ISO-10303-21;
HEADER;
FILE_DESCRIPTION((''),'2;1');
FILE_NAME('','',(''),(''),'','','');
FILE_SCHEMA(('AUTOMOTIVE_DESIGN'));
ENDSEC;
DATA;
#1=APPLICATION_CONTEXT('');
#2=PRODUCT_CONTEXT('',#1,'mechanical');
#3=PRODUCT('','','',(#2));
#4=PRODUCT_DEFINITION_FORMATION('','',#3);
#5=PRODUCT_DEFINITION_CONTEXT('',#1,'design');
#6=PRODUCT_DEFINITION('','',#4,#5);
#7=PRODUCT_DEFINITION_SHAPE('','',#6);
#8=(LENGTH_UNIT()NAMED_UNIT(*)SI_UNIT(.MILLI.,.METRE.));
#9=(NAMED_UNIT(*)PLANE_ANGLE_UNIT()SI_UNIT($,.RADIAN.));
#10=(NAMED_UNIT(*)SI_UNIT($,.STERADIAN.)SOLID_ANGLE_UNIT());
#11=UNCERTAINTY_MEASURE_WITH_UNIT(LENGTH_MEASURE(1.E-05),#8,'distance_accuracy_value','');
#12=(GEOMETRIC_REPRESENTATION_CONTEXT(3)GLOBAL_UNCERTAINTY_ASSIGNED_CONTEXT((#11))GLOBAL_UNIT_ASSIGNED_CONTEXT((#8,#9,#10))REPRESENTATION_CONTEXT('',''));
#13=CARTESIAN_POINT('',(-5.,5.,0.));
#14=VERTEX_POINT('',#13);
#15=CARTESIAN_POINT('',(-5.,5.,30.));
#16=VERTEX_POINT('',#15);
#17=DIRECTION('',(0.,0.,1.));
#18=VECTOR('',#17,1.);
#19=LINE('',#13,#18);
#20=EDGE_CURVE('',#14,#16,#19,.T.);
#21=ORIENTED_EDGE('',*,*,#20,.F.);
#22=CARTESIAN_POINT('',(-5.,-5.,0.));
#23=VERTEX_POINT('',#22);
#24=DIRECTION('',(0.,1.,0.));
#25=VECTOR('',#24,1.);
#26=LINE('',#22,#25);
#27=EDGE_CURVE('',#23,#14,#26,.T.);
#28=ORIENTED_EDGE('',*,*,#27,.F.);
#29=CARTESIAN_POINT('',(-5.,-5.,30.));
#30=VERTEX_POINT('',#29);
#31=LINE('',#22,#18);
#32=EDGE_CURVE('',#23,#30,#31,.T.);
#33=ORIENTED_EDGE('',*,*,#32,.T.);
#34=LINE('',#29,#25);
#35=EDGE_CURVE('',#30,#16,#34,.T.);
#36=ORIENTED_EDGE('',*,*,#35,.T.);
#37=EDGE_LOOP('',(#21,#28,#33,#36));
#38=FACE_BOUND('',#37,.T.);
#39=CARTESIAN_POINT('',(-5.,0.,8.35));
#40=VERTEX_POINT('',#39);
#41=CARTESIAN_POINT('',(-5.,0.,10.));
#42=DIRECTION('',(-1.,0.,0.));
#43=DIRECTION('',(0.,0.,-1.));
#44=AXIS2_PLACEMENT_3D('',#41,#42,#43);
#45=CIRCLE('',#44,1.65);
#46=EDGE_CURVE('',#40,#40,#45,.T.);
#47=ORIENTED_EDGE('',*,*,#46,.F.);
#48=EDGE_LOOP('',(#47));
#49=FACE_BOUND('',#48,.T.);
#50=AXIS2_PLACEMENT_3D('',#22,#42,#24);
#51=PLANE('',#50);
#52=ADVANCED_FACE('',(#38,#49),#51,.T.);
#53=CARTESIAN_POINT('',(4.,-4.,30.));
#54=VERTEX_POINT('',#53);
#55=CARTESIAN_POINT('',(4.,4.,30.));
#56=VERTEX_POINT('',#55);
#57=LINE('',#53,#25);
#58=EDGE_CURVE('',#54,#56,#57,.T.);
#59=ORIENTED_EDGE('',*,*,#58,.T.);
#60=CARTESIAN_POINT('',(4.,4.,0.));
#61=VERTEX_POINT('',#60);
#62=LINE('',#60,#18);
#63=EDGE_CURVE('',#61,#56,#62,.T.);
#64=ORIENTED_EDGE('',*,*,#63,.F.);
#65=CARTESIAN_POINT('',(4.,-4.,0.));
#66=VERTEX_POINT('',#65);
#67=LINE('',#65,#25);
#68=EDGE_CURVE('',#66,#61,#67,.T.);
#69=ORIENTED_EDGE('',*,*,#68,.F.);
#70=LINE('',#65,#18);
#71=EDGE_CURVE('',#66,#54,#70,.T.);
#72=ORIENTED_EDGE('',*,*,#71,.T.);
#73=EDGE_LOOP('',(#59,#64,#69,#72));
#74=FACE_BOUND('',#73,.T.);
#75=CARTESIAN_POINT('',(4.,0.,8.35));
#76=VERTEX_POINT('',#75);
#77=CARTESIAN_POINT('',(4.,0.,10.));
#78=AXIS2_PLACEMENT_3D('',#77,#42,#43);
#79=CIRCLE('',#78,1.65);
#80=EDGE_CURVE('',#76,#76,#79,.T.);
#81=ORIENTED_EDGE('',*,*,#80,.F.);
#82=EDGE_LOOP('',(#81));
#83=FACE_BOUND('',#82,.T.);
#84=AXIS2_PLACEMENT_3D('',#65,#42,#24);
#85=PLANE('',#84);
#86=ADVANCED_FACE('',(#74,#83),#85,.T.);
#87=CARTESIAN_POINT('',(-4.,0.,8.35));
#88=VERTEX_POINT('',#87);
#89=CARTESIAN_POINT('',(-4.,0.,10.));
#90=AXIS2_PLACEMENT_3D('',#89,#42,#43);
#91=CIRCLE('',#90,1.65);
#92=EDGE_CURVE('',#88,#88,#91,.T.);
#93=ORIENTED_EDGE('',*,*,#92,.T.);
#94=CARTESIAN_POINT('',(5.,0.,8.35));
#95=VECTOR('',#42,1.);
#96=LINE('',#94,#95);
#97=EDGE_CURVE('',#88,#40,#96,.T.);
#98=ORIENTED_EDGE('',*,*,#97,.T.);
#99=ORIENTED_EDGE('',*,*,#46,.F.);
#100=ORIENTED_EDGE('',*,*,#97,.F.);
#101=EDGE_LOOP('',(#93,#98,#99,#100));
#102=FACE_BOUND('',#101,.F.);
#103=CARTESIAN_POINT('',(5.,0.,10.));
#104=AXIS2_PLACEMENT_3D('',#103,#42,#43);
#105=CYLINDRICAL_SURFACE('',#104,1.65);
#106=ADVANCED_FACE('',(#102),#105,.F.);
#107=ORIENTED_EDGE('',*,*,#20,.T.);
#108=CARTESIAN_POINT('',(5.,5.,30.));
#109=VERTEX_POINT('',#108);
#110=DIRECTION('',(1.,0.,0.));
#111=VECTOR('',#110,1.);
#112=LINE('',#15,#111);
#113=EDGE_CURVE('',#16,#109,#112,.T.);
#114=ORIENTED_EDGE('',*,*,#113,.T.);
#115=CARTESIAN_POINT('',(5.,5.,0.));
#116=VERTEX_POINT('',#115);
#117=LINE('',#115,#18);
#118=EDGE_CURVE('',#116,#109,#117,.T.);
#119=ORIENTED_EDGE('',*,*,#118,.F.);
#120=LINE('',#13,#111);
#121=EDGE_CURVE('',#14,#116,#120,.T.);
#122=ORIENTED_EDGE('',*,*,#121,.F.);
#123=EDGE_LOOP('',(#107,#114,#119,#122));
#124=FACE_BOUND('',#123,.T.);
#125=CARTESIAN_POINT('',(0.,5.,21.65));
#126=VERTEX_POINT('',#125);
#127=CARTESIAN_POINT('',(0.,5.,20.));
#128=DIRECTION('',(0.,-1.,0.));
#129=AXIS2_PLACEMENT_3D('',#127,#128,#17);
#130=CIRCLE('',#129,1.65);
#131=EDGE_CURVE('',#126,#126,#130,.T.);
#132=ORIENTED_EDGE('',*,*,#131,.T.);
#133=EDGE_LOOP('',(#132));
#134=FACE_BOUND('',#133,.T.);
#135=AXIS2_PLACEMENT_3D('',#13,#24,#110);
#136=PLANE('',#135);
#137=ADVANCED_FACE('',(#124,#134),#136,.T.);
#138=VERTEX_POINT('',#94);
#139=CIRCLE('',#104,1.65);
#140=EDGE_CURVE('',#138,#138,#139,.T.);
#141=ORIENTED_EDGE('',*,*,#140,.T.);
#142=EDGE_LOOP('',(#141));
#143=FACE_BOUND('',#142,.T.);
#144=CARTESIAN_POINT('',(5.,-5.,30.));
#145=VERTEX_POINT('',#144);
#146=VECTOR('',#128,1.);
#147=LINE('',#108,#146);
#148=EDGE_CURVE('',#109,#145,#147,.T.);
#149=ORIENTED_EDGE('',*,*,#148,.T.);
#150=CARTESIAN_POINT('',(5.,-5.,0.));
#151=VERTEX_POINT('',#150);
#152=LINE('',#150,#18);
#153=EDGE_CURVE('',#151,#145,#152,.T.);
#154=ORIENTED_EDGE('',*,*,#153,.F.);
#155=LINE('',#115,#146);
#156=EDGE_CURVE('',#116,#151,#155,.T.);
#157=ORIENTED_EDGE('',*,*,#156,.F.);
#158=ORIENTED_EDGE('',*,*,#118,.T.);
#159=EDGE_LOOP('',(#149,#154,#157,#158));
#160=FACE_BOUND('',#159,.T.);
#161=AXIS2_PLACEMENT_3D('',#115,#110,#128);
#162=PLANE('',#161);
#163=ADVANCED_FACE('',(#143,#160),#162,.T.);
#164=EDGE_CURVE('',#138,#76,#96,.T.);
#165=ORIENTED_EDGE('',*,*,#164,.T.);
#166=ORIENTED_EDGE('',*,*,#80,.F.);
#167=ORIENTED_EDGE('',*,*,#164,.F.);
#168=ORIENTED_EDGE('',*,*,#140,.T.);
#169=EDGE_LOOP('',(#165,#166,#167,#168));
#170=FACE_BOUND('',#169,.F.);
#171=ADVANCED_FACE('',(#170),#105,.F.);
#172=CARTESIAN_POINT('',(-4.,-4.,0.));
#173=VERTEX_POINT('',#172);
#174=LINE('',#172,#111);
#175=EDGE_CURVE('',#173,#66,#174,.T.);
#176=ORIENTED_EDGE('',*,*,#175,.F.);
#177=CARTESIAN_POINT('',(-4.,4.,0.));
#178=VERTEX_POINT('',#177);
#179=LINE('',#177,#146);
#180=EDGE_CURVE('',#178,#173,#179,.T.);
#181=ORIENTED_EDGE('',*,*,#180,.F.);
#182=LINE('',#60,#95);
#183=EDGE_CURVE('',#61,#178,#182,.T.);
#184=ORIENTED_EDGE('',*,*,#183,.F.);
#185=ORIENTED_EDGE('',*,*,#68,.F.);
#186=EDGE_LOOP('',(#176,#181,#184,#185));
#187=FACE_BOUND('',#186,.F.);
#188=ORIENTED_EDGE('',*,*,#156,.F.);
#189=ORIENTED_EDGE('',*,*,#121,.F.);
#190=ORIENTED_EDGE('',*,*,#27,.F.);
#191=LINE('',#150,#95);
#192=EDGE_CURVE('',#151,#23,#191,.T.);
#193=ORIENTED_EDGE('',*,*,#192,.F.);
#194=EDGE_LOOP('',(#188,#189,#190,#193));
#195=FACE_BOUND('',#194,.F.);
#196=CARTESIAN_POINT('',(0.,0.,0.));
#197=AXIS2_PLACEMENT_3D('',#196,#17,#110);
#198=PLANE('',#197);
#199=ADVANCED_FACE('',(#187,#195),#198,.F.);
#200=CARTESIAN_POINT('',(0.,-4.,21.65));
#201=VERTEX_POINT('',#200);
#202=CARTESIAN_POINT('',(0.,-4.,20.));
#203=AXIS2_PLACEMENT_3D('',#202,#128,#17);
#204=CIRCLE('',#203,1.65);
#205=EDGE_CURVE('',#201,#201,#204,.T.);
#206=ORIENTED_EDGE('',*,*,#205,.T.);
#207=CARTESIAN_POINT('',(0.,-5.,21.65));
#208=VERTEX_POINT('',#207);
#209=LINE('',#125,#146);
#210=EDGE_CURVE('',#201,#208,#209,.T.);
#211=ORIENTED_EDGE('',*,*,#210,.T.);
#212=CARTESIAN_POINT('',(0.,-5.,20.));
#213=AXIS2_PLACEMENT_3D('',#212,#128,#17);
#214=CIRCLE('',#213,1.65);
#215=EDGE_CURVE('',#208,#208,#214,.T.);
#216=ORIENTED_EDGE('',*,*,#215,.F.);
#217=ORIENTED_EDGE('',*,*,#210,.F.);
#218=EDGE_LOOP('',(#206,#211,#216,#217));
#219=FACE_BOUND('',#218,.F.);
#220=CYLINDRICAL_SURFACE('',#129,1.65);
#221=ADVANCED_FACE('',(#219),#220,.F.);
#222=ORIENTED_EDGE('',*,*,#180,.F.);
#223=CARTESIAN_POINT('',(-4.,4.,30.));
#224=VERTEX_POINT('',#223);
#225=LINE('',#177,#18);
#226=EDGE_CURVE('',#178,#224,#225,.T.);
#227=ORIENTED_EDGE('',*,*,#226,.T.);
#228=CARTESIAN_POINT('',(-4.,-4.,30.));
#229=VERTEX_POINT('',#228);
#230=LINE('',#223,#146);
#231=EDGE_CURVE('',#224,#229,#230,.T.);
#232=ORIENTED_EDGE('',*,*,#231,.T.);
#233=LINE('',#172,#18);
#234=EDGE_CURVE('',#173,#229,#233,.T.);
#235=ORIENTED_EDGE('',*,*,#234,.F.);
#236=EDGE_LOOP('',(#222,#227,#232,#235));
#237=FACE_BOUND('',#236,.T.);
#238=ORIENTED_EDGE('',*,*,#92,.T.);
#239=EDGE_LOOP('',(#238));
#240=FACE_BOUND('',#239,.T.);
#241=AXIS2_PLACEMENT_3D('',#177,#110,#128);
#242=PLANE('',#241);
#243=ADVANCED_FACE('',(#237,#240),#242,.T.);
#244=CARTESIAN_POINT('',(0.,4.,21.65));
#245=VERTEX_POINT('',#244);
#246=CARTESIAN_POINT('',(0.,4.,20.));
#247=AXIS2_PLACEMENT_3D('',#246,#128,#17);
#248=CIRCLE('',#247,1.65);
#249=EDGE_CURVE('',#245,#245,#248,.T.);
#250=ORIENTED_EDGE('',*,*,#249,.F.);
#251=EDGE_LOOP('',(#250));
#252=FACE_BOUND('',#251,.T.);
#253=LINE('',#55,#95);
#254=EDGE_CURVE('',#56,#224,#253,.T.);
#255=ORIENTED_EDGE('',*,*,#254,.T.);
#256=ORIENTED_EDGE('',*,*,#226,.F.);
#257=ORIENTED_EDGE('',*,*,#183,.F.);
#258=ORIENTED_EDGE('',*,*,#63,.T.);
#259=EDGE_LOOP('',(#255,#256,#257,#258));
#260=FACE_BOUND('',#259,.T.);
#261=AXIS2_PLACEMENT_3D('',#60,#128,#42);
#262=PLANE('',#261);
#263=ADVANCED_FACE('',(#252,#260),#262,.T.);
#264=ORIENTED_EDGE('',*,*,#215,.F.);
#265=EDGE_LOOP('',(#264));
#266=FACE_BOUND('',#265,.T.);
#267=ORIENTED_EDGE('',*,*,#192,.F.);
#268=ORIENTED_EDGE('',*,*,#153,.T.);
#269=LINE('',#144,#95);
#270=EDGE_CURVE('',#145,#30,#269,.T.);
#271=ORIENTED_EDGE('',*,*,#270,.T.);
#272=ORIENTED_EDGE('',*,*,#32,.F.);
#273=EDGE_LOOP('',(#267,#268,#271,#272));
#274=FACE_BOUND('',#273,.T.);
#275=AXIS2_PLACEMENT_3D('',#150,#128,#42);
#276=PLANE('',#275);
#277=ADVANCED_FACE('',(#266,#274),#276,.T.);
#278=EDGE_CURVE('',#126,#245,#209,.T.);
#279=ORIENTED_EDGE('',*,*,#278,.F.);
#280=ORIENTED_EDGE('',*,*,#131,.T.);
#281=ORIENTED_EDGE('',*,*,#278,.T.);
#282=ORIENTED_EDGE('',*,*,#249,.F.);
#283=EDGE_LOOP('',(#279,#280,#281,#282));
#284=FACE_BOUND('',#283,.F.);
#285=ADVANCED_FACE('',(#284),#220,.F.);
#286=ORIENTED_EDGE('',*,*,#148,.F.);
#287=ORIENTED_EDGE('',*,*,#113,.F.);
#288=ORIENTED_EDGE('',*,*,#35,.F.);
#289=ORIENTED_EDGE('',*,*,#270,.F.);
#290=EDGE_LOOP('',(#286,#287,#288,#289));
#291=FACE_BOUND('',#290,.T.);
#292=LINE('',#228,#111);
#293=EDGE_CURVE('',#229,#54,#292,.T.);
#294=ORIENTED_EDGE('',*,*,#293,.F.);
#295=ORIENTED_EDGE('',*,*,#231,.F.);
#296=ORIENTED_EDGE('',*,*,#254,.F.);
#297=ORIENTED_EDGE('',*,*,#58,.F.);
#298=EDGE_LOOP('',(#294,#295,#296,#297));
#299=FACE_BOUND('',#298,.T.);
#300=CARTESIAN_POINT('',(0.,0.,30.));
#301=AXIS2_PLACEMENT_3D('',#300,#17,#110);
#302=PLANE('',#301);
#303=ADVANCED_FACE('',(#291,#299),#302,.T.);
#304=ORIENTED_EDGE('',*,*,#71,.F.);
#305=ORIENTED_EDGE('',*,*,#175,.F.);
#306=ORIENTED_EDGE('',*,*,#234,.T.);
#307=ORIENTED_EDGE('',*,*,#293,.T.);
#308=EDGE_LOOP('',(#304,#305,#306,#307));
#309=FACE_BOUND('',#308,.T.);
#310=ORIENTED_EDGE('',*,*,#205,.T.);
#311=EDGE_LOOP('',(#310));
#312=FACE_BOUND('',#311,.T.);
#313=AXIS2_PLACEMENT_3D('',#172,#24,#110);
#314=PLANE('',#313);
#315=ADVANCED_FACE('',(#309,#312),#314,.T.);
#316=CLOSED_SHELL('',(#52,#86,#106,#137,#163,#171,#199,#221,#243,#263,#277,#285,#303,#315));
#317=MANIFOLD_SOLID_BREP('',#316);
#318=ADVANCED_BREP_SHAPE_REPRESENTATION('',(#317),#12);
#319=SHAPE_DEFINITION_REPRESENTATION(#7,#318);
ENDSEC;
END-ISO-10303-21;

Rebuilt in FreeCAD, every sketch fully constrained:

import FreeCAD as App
import Part
import Sketcher
from FreeCAD import Vector

doc = App.newDocument("Part")
body = doc.addObject("PartDesign::Body", "Body")

# Sketch on XY plane
sketch1 = body.newObject("Sketcher::SketchObject", "Sketch")
sketch1.AttachmentSupport = (doc.getObject("XY_Plane"), [""])
sketch1.MapMode = "FlatFace"
sketch1.addGeometry([
    Part.LineSegment(Vector(-5, -5, 0), Vector(5, -5, 0)),  # 0
    Part.LineSegment(Vector(5, -5, 0), Vector(5, 5, 0)),  # 1
    Part.LineSegment(Vector(5, 5, 0), Vector(-5, 5, 0)),  # 2
    Part.LineSegment(Vector(-5, 5, 0), Vector(-5, -5, 0)),  # 3
    Part.LineSegment(Vector(-4, 4, 0), Vector(4, 4, 0)),  # 4
    Part.LineSegment(Vector(4, 4, 0), Vector(4, -4, 0)),  # 5
    Part.LineSegment(Vector(4, -4, 0), Vector(-4, -4, 0)),  # 6
    Part.LineSegment(Vector(-4, -4, 0), Vector(-4, 4, 0)),  # 7
], False)
sketch1.addConstraint([
    Sketcher.Constraint("Coincident", 0, 2, 1, 1),
    Sketcher.Constraint("Coincident", 1, 2, 2, 1),
    Sketcher.Constraint("Coincident", 2, 2, 3, 1),
    Sketcher.Constraint("Coincident", 3, 2, 0, 1),
    Sketcher.Constraint("Coincident", 4, 2, 5, 1),
    Sketcher.Constraint("Coincident", 5, 2, 6, 1),
    Sketcher.Constraint("Coincident", 6, 2, 7, 1),
    Sketcher.Constraint("Coincident", 7, 2, 4, 1),
    Sketcher.Constraint("Horizontal", 0),
    Sketcher.Constraint("Vertical", 1),
    Sketcher.Constraint("Horizontal", 2),
    Sketcher.Constraint("Vertical", 3),
    Sketcher.Constraint("Horizontal", 4),
    Sketcher.Constraint("Vertical", 5),
    Sketcher.Constraint("Horizontal", 6),
    Sketcher.Constraint("Vertical", 7),
    Sketcher.Constraint("Symmetric", 0, 2, 2, 2, -1, 1),
    Sketcher.Constraint("Symmetric", 4, 2, 6, 2, -1, 1),
    Sketcher.Constraint("Equal", 2, 1),
    Sketcher.Constraint("Equal", 6, 5),
    Sketcher.Constraint("DistanceX", 0, 1, 0, 2, 10.0),
    Sketcher.Constraint("DistanceX", 4, 2, 1, 2, 1.0),
])
pad1 = body.newObject("PartDesign::Pad", "Pad")
pad1.Profile = sketch1
pad1.Length = 30

# Sketch on YZ plane
sketch2 = body.newObject("Sketcher::SketchObject", "Sketch001")
sketch2.AttachmentSupport = (doc.getObject("YZ_Plane"), [""])
sketch2.MapMode = "FlatFace"
sketch2.AttachmentOffset = App.Placement(Vector(0, 0, 5), App.Rotation())
sketch2.addGeometry(Part.Circle(Vector(0, 10, 0), Vector(0, 0, 1), 1.65), False)
sketch2.addConstraint([
    Sketcher.Constraint("PointOnObject", 0, 3, -2),
    Sketcher.Constraint("Diameter", 0, 3.3),
    Sketcher.Constraint("DistanceY", -1, 1, 0, 3, 10.0),
])
doc.recompute()
hole = body.newObject("PartDesign::Hole", "Hole")
hole.Profile = sketch2
hole.ThreadType = "None"
hole.Diameter = 3.3
hole.DepthType = "ThroughAll"

# Sketch on XZ plane
sketch3 = body.newObject("Sketcher::SketchObject", "Sketch002")
sketch3.AttachmentSupport = (doc.getObject("XZ_Plane"), [""])
sketch3.MapMode = "FlatFace"
sketch3.AttachmentOffset = App.Placement(Vector(0, 0, -5), App.Rotation())
sketch3.addGeometry(Part.Circle(Vector(0, 20, 0), Vector(0, 0, 1), 1.65), False)
sketch3.addConstraint([
    Sketcher.Constraint("PointOnObject", 0, 3, -2),
    Sketcher.Constraint("Diameter", 0, 3.3),
    Sketcher.Constraint("DistanceY", -1, 1, 0, 3, 20.0),
])
doc.recompute()
hole2 = body.newObject("PartDesign::Hole", "Hole001")
hole2.Profile = sketch3
hole2.ThreadType = "None"
hole2.Diameter = 3.3
hole2.DepthType = "ThroughAll"
hole2.Reversed = True

doc.recompute()
